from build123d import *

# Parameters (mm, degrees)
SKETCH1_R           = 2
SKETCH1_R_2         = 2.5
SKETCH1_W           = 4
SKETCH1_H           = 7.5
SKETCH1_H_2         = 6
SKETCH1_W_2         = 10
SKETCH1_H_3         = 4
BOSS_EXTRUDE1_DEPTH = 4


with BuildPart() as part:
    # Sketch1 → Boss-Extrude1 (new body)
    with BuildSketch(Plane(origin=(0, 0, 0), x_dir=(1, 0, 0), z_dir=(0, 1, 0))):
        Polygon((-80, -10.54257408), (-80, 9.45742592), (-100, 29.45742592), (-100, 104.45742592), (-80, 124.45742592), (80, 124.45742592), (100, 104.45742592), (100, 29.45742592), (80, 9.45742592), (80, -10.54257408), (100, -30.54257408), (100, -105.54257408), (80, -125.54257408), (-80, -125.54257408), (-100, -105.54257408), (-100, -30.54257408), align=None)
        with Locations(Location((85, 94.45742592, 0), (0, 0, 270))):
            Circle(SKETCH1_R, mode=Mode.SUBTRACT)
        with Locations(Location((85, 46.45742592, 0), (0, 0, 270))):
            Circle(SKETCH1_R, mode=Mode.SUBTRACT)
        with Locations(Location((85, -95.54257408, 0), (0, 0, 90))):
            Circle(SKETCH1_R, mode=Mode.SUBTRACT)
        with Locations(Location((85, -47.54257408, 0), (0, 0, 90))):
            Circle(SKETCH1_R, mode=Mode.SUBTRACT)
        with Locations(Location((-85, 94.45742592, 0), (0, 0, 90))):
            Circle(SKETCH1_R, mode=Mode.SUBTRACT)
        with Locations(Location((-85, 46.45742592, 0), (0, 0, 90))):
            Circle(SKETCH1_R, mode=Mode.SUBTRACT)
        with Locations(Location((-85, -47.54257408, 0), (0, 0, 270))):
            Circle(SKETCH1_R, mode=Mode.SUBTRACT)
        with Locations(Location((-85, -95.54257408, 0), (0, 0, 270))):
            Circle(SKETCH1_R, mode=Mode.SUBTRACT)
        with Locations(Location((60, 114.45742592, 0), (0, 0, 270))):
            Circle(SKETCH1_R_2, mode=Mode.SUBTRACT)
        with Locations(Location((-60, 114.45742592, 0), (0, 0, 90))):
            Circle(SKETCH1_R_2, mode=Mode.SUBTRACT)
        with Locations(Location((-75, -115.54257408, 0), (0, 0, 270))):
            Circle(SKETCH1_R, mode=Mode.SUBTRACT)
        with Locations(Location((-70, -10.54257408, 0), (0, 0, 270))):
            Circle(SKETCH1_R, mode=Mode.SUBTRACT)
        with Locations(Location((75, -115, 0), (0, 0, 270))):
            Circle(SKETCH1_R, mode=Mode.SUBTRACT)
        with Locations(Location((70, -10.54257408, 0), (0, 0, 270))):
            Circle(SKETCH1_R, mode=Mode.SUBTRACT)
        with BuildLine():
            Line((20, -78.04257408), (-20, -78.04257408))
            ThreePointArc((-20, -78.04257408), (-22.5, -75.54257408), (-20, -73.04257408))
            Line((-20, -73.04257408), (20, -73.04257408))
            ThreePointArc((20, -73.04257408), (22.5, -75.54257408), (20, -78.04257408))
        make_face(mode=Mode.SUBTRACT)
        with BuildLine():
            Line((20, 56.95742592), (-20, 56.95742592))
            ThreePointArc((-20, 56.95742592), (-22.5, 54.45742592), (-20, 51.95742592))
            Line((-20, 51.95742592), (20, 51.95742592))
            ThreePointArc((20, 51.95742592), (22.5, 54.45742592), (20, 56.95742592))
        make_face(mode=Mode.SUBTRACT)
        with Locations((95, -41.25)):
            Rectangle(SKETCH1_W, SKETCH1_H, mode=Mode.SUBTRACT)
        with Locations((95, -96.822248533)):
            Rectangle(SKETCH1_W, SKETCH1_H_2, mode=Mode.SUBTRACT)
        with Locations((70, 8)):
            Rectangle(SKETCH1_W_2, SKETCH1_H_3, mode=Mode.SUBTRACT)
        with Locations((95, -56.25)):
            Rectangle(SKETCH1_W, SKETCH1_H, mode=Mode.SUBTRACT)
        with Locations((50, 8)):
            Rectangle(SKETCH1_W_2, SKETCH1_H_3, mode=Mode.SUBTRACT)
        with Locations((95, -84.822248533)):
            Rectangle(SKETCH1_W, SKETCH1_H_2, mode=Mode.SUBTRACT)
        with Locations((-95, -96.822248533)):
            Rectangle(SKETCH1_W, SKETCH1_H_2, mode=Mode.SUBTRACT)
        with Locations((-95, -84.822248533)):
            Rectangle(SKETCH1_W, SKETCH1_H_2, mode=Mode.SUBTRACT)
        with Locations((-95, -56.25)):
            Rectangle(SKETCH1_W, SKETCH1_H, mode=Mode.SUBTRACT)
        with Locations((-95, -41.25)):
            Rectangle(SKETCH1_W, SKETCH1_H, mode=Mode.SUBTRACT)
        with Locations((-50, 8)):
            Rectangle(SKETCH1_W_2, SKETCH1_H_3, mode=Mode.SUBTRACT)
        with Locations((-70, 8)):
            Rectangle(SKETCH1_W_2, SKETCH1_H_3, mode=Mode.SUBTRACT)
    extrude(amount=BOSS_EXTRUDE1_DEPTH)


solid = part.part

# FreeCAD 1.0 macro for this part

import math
import FreeCAD as App
import Part
import Sketcher
from FreeCAD import Vector
Q = App.Units.Quantity

doc = App.newDocument("Part")
params = doc.addObject("Spreadsheet::Sheet", "Params")
for row, (alias, value) in enumerate([
    ("sketch1_diameter", "4 mm"),
    ("sketch1_diameter2", "5 mm"),
    ("sketch1_width", "160 mm"),
    ("sketch1_width2", "4 mm"),
    ("sketch1_width3", "40 mm"),
    ("pad1_length", "4 mm"),
], start=1):
    params.set(f"A{row}", alias)
    params.set(f"B{row}", "=" + value)
    params.setAlias(f"B{row}", alias)

body = doc.addObject("PartDesign::Body", "Body")

# Sketch on XZ plane
sketch1 = body.newObject("Sketcher::SketchObject", "Sketch")
sketch1.AttachmentSupport = (doc.getObject("XZ_Plane"), [""])
sketch1.MapMode = "FlatFace"
sketch1.addGeometry([
    Part.LineSegment(Vector(-80, -9.5, 0), Vector(-80, 10.5, 0)),  # 0
    Part.LineSegment(Vector(-80, 10.5, 0), Vector(-100, 30.5, 0)),  # 1
    Part.LineSegment(Vector(-100, 30.5, 0), Vector(-100, 105.5, 0)),  # 2
    Part.LineSegment(Vector(-100, 105.5, 0), Vector(-80, 125.5, 0)),  # 3
    Part.LineSegment(Vector(-80, 125.5, 0), Vector(80, 125.5, 0)),  # 4
    Part.LineSegment(Vector(80, 125.5, 0), Vector(100, 105.5, 0)),  # 5
    Part.LineSegment(Vector(100, 105.5, 0), Vector(100, 30.5, 0)),  # 6
    Part.LineSegment(Vector(100, 30.5, 0), Vector(80, 10.5, 0)),  # 7
    Part.LineSegment(Vector(80, 10.5, 0), Vector(80, -9.5, 0)),  # 8
    Part.LineSegment(Vector(80, -9.5, 0), Vector(100, -29.5, 0)),  # 9
    Part.LineSegment(Vector(100, -29.5, 0), Vector(100, -104.5, 0)),  # 10
    Part.LineSegment(Vector(100, -104.5, 0), Vector(80, -124.5, 0)),  # 11
    Part.LineSegment(Vector(80, -124.5, 0), Vector(-80, -124.5, 0)),  # 12
    Part.LineSegment(Vector(-80, -124.5, 0), Vector(-100, -104.5, 0)),  # 13
    Part.LineSegment(Vector(-100, -104.5, 0), Vector(-100, -29.5, 0)),  # 14
    Part.LineSegment(Vector(-100, -29.5, 0), Vector(-80, -9.5, 0)),  # 15
    Part.Circle(Vector(75, 115, 0), Vector(0, 0, 1), 2),  # 16
    Part.LineSegment(Vector(93, 99.8, 0), Vector(93, 93.8, 0)),  # 17
    Part.LineSegment(Vector(93, 93.8, 0), Vector(97, 93.8, 0)),  # 18
    Part.LineSegment(Vector(97, 93.8, 0), Vector(97, 99.8, 0)),  # 19
    Part.LineSegment(Vector(97, 99.8, 0), Vector(93, 99.8, 0)),  # 20
    Part.Circle(Vector(85, 95.5, 0), Vector(0, 0, 1), 2),  # 21
    Part.LineSegment(Vector(93, 87.8, 0), Vector(93, 81.8, 0)),  # 22
    Part.LineSegment(Vector(93, 81.8, 0), Vector(97, 81.8, 0)),  # 23
    Part.LineSegment(Vector(97, 81.8, 0), Vector(97, 87.8, 0)),  # 24
    Part.LineSegment(Vector(97, 87.8, 0), Vector(93, 87.8, 0)),  # 25
    Part.LineSegment(Vector(93, 60, 0), Vector(93, 52.5, 0)),  # 26
    Part.LineSegment(Vector(93, 52.5, 0), Vector(97, 52.5, 0)),  # 27
    Part.LineSegment(Vector(97, 52.5, 0), Vector(97, 60, 0)),  # 28
    Part.LineSegment(Vector(97, 60, 0), Vector(93, 60, 0)),  # 29
    Part.Circle(Vector(85, 47.5, 0), Vector(0, 0, 1), 2),  # 30
    Part.LineSegment(Vector(93, 45, 0), Vector(93, 37.5, 0)),  # 31
    Part.LineSegment(Vector(93, 37.5, 0), Vector(97, 37.5, 0)),  # 32
    Part.LineSegment(Vector(97, 37.5, 0), Vector(97, 45, 0)),  # 33
    Part.LineSegment(Vector(97, 45, 0), Vector(93, 45, 0)),  # 34
    Part.Circle(Vector(70, 10.5, 0), Vector(0, 0, 1), 2),  # 35
    Part.LineSegment(Vector(20, 78, 0), Vector(-20, 78, 0)),  # 36
    Part.ArcOfCircle(Part.Circle(Vector(-20, 75.5, 0), Vector(0, 0, 1), 2.5), math.radians(90), math.radians(270)),  # 37
    Part.LineSegment(Vector(-20, 73, 0), Vector(20, 73, 0)),  # 38
    Part.ArcOfCircle(Part.Circle(Vector(20, 75.5, 0), Vector(0, 0, 1), 2.5), math.radians(-90), math.radians(90)),  # 39
    Part.Circle(Vector(-75, 115.5, 0), Vector(0, 0, 1), 2),  # 40
    Part.LineSegment(Vector(-97, 99.8, 0), Vector(-97, 93.8, 0)),  # 41
    Part.LineSegment(Vector(-97, 93.8, 0), Vector(-93, 93.8, 0)),  # 42
    Part.LineSegment(Vector(-93, 93.8, 0), Vector(-93, 99.8, 0)),  # 43
    Part.LineSegment(Vector(-93, 99.8, 0), Vector(-97, 99.8, 0)),  # 44
    Part.Circle(Vector(-85, 95.5, 0), Vector(0, 0, 1), 2),  # 45
    Part.LineSegment(Vector(-97, 87.8, 0), Vector(-97, 81.8, 0)),  # 46
    Part.LineSegment(Vector(-97, 81.8, 0), Vector(-93, 81.8, 0)),  # 47
    Part.LineSegment(Vector(-93, 81.8, 0), Vector(-93, 87.8, 0)),  # 48
    Part.LineSegment(Vector(-93, 87.8, 0), Vector(-97, 87.8, 0)),  # 49
    Part.LineSegment(Vector(-97, 60, 0), Vector(-97, 52.5, 0)),  # 50
    Part.LineSegment(Vector(-97, 52.5, 0), Vector(-93, 52.5, 0)),  # 51
    Part.LineSegment(Vector(-93, 52.5, 0), Vector(-93, 60, 0)),  # 52
    Part.LineSegment(Vector(-93, 60, 0), Vector(-97, 60, 0)),  # 53
    Part.Circle(Vector(-85, 47.5, 0), Vector(0, 0, 1), 2),  # 54
    Part.LineSegment(Vector(-97, 45, 0), Vector(-97, 37.5, 0)),  # 55
    Part.LineSegment(Vector(-97, 37.5, 0), Vector(-93, 37.5, 0)),  # 56
    Part.LineSegment(Vector(-93, 37.5, 0), Vector(-93, 45, 0)),  # 57
    Part.LineSegment(Vector(-93, 45, 0), Vector(-97, 45, 0)),  # 58
    Part.Circle(Vector(-70, 10.5, 0), Vector(0, 0, 1), 2),  # 59
    Part.LineSegment(Vector(65, -6, 0), Vector(65, -10, 0)),  # 60
    Part.LineSegment(Vector(65, -10, 0), Vector(75, -10, 0)),  # 61
    Part.LineSegment(Vector(75, -10, 0), Vector(75, -6, 0)),  # 62
    Part.LineSegment(Vector(75, -6, 0), Vector(65, -6, 0)),  # 63
    Part.LineSegment(Vector(45, -6, 0), Vector(45, -10, 0)),  # 64
    Part.LineSegment(Vector(45, -10, 0), Vector(55, -10, 0)),  # 65
    Part.LineSegment(Vector(55, -10, 0), Vector(55, -6, 0)),  # 66
    Part.LineSegment(Vector(55, -6, 0), Vector(45, -6, 0)),  # 67
    Part.Circle(Vector(85, -46.5, 0), Vector(0, 0, 1), 2),  # 68
    Part.Circle(Vector(85, -94.5, 0), Vector(0, 0, 1), 2),  # 69
    Part.Circle(Vector(60, -114.5, 0), Vector(0, 0, 1), 2.5),  # 70
    Part.ArcOfCircle(Part.Circle(Vector(20, -54.5, 0), Vector(0, 0, 1), 2.5), math.radians(-90), math.radians(90)),  # 71
    Part.LineSegment(Vector(20, -52, 0), Vector(-20, -52, 0)),  # 72
    Part.ArcOfCircle(Part.Circle(Vector(-20, -54.5, 0), Vector(0, 0, 1), 2.5), math.radians(90), math.radians(270)),  # 73
    Part.LineSegment(Vector(-20, -57, 0), Vector(20, -57, 0)),  # 74
    Part.LineSegment(Vector(-55, -6, 0), Vector(-55, -10, 0)),  # 75
    Part.LineSegment(Vector(-55, -10, 0), Vector(-45, -10, 0)),  # 76
    Part.LineSegment(Vector(-45, -10, 0), Vector(-45, -6, 0)),  # 77
    Part.LineSegment(Vector(-45, -6, 0), Vector(-55, -6, 0)),  # 78
    Part.LineSegment(Vector(-75, -6, 0), Vector(-75, -10, 0)),  # 79
    Part.LineSegment(Vector(-75, -10, 0), Vector(-65, -10, 0)),  # 80
    Part.LineSegment(Vector(-65, -10, 0), Vector(-65, -6, 0)),  # 81
    Part.LineSegment(Vector(-65, -6, 0), Vector(-75, -6, 0)),  # 82
    Part.Circle(Vector(-85, -46.5, 0), Vector(0, 0, 1), 2),  # 83
    Part.Circle(Vector(-60, -114.5, 0), Vector(0, 0, 1), 2.5),  # 84
    Part.Circle(Vector(-85, -94.5, 0), Vector(0, 0, 1), 2),  # 85
], False)
sketch1.addConstraint([
    Sketcher.Constraint("Coincident", 0, 2, 1, 1),
    Sketcher.Constraint("Coincident", 1, 2, 2, 1),
    Sketcher.Constraint("Coincident", 2, 2, 3, 1),
    Sketcher.Constraint("Coincident", 3, 2, 4, 1),
    Sketcher.Constraint("Coincident", 4, 2, 5, 1),
    Sketcher.Constraint("Coincident", 5, 2, 6, 1),
    Sketcher.Constraint("Coincident", 6, 2, 7, 1),
    Sketcher.Constraint("Coincident", 7, 2, 8, 1),
    Sketcher.Constraint("Coincident", 8, 2, 9, 1),
    Sketcher.Constraint("Coincident", 9, 2, 10, 1),
    Sketcher.Constraint("Coincident", 10, 2, 11, 1),
    Sketcher.Constraint("Coincident", 11, 2, 12, 1),
    Sketcher.Constraint("Coincident", 12, 2, 13, 1),
    Sketcher.Constraint("Coincident", 13, 2, 14, 1),
    Sketcher.Constraint("Coincident", 14, 2, 15, 1),
    Sketcher.Constraint("Coincident", 15, 2, 0, 1),
    Sketcher.Constraint("Coincident", 17, 2, 18, 1),
    Sketcher.Constraint("Coincident", 18, 2, 19, 1),
    Sketcher.Constraint("Coincident", 19, 2, 20, 1),
    Sketcher.Constraint("Coincident", 20, 2, 17, 1),
    Sketcher.Constraint("Coincident", 22, 2, 23, 1),
    Sketcher.Constraint("Coincident", 23, 2, 24, 1),
    Sketcher.Constraint("Coincident", 24, 2, 25, 1),
    Sketcher.Constraint("Coincident", 25, 2, 22, 1),
    Sketcher.Constraint("Coincident", 26, 2, 27, 1),
    Sketcher.Constraint("Coincident", 27, 2, 28, 1),
    Sketcher.Constraint("Coincident", 28, 2, 29, 1),
    Sketcher.Constraint("Coincident", 29, 2, 26, 1),
    Sketcher.Constraint("Coincident", 31, 2, 32, 1),
    Sketcher.Constraint("Coincident", 32, 2, 33, 1),
    Sketcher.Constraint("Coincident", 33, 2, 34, 1),
    Sketcher.Constraint("Coincident", 34, 2, 31, 1),
    Sketcher.Constraint("Tangent", 36, 2, 37, 1),
    Sketcher.Constraint("Tangent", 37, 2, 38, 1),
    Sketcher.Constraint("Tangent", 38, 2, 39, 1),
    Sketcher.Constraint("Tangent", 39, 2, 36, 1),
    Sketcher.Constraint("Coincident", 41, 2, 42, 1),
    Sketcher.Constraint("Coincident", 42, 2, 43, 1),
    Sketcher.Constraint("Coincident", 43, 2, 44, 1),
    Sketcher.Constraint("Coincident", 44, 2, 41, 1),
    Sketcher.Constraint("Coincident", 46, 2, 47, 1),
    Sketcher.Constraint("Coincident", 47, 2, 48, 1),
    Sketcher.Constraint("Coincident", 48, 2, 49, 1),
    Sketcher.Constraint("Coincident", 49, 2, 46, 1),
    Sketcher.Constraint("Coincident", 50, 2, 51, 1),
    Sketcher.Constraint("Coincident", 51, 2, 52, 1),
    Sketcher.Constraint("Coincident", 52, 2, 53, 1),
    Sketcher.Constraint("Coincident", 53, 2, 50, 1),
    Sketcher.Constraint("Coincident", 55, 2, 56, 1),
    Sketcher.Constraint("Coincident", 56, 2, 57, 1),
    Sketcher.Constraint("Coincident", 57, 2, 58, 1),
    Sketcher.Constraint("Coincident", 58, 2, 55, 1),
    Sketcher.Constraint("Coincident", 60, 2, 61, 1),
    Sketcher.Constraint("Coincident", 61, 2, 62, 1),
    Sketcher.Constraint("Coincident", 62, 2, 63, 1),
    Sketcher.Constraint("Coincident", 63, 2, 60, 1),
    Sketcher.Constraint("Coincident", 64, 2, 65, 1),
    Sketcher.Constraint("Coincident", 65, 2, 66, 1),
    Sketcher.Constraint("Coincident", 66, 2, 67, 1),
    Sketcher.Constraint("Coincident", 67, 2, 64, 1),
    Sketcher.Constraint("Tangent", 71, 2, 72, 1),
    Sketcher.Constraint("Tangent", 72, 2, 73, 1),
    Sketcher.Constraint("Tangent", 73, 2, 74, 1),
    Sketcher.Constraint("Tangent", 74, 2, 71, 1),
    Sketcher.Constraint("Coincident", 75, 2, 76, 1),
    Sketcher.Constraint("Coincident", 76, 2, 77, 1),
    Sketcher.Constraint("Coincident", 77, 2, 78, 1),
    Sketcher.Constraint("Coincident", 78, 2, 75, 1),
    Sketcher.Constraint("Coincident", 79, 2, 80, 1),
    Sketcher.Constraint("Coincident", 80, 2, 81, 1),
    Sketcher.Constraint("Coincident", 81, 2, 82, 1),
    Sketcher.Constraint("Coincident", 82, 2, 79, 1),
    Sketcher.Constraint("Vertical", 0),
    Sketcher.Constraint("Vertical", 2),
    Sketcher.Constraint("Horizontal", 4),
    Sketcher.Constraint("Vertical", 6),
    Sketcher.Constraint("Vertical", 8),
    Sketcher.Constraint("Vertical", 10),
    Sketcher.Constraint("Horizontal", 12),
    Sketcher.Constraint("Vertical", 14),
    Sketcher.Constraint("Vertical", 17),
    Sketcher.Constraint("Horizontal", 18),
    Sketcher.Constraint("Vertical", 19),
    Sketcher.Constraint("Horizontal", 20),
    Sketcher.Constraint("Vertical", 22),
    Sketcher.Constraint("Horizontal", 23),
    Sketcher.Constraint("Vertical", 24),
    Sketcher.Constraint("Horizontal", 25),
    Sketcher.Constraint("Vertical", 26),
    Sketcher.Constraint("Horizontal", 27),
    Sketcher.Constraint("Vertical", 28),
    Sketcher.Constraint("Horizontal", 29),
    Sketcher.Constraint("Vertical", 31),
    Sketcher.Constraint("Horizontal", 32),
    Sketcher.Constraint("Vertical", 33),
    Sketcher.Constraint("Horizontal", 34),
    Sketcher.Constraint("Horizontal", 36),
    Sketcher.Constraint("Horizontal", 38),
    Sketcher.Constraint("Vertical", 41),
    Sketcher.Constraint("Horizontal", 42),
    Sketcher.Constraint("Vertical", 43),
    Sketcher.Constraint("Horizontal", 44),
    Sketcher.Constraint("Vertical", 46),
    Sketcher.Constraint("Horizontal", 47),
    Sketcher.Constraint("Vertical", 48),
    Sketcher.Constraint("Horizontal", 49),
    Sketcher.Constraint("Vertical", 50),
    Sketcher.Constraint("Horizontal", 51),
    Sketcher.Constraint("Vertical", 52),
    Sketcher.Constraint("Horizontal", 53),
    Sketcher.Constraint("Vertical", 55),
    Sketcher.Constraint("Horizontal", 56),
    Sketcher.Constraint("Vertical", 57),
    Sketcher.Constraint("Horizontal", 58),
    Sketcher.Constraint("Vertical", 60),
    Sketcher.Constraint("Horizontal", 61),
    Sketcher.Constraint("Vertical", 62),
    Sketcher.Constraint("Horizontal", 63),
    Sketcher.Constraint("Vertical", 64),
    Sketcher.Constraint("Horizontal", 65),
    Sketcher.Constraint("Vertical", 66),
    Sketcher.Constraint("Horizontal", 67),
    Sketcher.Constraint("Horizontal", 72),
    Sketcher.Constraint("Horizontal", 74),
    Sketcher.Constraint("Vertical", 75),
    Sketcher.Constraint("Horizontal", 76),
    Sketcher.Constraint("Vertical", 77),
    Sketcher.Constraint("Horizontal", 78),
    Sketcher.Constraint("Vertical", 79),
    Sketcher.Constraint("Horizontal", 80),
    Sketcher.Constraint("Vertical", 81),
    Sketcher.Constraint("Horizontal", 82),
    Sketcher.Constraint("Equal", 16, 21),
    Sketcher.Constraint("Equal", 21, 30),
    Sketcher.Constraint("Equal", 30, 35),
    Sketcher.Constraint("Equal", 35, 40),
    Sketcher.Constraint("Equal", 40, 45),
    Sketcher.Constraint("Equal", 45, 54),
    Sketcher.Constraint("Equal", 54, 59),
    Sketcher.Constraint("Equal", 59, 68),
    Sketcher.Constraint("Equal", 68, 69),
    Sketcher.Constraint("Equal", 39, 70),
    Sketcher.Constraint("Equal", 70, 71),
    Sketcher.Constraint("Equal", 69, 83),
    Sketcher.Constraint("Equal", 73, 84),
    Sketcher.Constraint("Equal", 83, 85),
    Sketcher.Constraint("Symmetric", 21, 3, 45, 3, -2),
    Sketcher.Constraint("Symmetric", 30, 3, 54, 3, -2),
    Sketcher.Constraint("Symmetric", 35, 3, 59, 3, -2),
    Sketcher.Constraint("Symmetric", 68, 3, 83, 3, -2),
    Sketcher.Constraint("Symmetric", 70, 3, 84, 3, -2),
    Sketcher.Constraint("Symmetric", 69, 3, 85, 3, -2),
    Sketcher.Constraint("Symmetric", 2, 2, 5, 2, -2),
    Sketcher.Constraint("Symmetric", 0, 2, 7, 2, -2),
    Sketcher.Constraint("Symmetric", 10, 2, 13, 2, -2),
    Sketcher.Constraint("Symmetric", 18, 2, 41, 2, -2),
    Sketcher.Constraint("Symmetric", 20, 2, 43, 2, -2),
    Sketcher.Constraint("Symmetric", 23, 2, 46, 2, -2),
    Sketcher.Constraint("Symmetric", 25, 2, 48, 2, -2),
    Sketcher.Constraint("Symmetric", 27, 2, 50, 2, -2),
    Sketcher.Constraint("Symmetric", 29, 2, 52, 2, -2),
    Sketcher.Constraint("Symmetric", 32, 2, 55, 2, -2),
    Sketcher.Constraint("Symmetric", 34, 2, 57, 2, -2),
    Sketcher.Constraint("Symmetric", 65, 2, 75, 2, -2),
    Sketcher.Constraint("Symmetric", 67, 2, 77, 2, -2),
    Sketcher.Constraint("Symmetric", 61, 2, 79, 2, -2),
    Sketcher.Constraint("Symmetric", 63, 2, 81, 2, -2),
    Sketcher.Constraint("Perpendicular", 1, 3),
    Sketcher.Constraint("Perpendicular", 3, 5),
    Sketcher.Constraint("Perpendicular", 5, 7),
    Sketcher.Constraint("Perpendicular", 7, 9),
    Sketcher.Constraint("Perpendicular", 9, 11),
    Sketcher.Constraint("Perpendicular", 11, 13),
    Sketcher.Constraint("Perpendicular", 13, 15),
    Sketcher.Constraint("Horizontal", 59, 3, 0, 2),
    Sketcher.Constraint("Horizontal", 1, 2, 6, 2),
    Sketcher.Constraint("Horizontal", 9, 2, 14, 2),
    Sketcher.Constraint("Horizontal", 61, 2, 64, 2),
    Sketcher.Constraint("Horizontal", 63, 2, 66, 2),
    Sketcher.Constraint("Vertical", 21, 3, 30, 3),
    Sketcher.Constraint("Vertical", 30, 3, 68, 3),
    Sketcher.Constraint("Vertical", 68, 3, 69, 3),
    Sketcher.Constraint("Vertical", 39, 3, 71, 3),
    Sketcher.Constraint("Vertical", 37, 3, 73, 3),
    Sketcher.Constraint("Vertical", 0, 2, 3, 2),
    Sketcher.Constraint("Vertical", 6, 2, 9, 2),
    Sketcher.Constraint("Vertical", 8, 2, 11, 2),
    Sketcher.Constraint("Vertical", 20, 2, 22, 2),
    Sketcher.Constraint("Vertical", 19, 2, 23, 2),
    Sketcher.Constraint("Vertical", 25, 2, 26, 2),
    Sketcher.Constraint("Vertical", 24, 2, 27, 2),
    Sketcher.Constraint("Vertical", 29, 2, 31, 2),
    Sketcher.Constraint("Vertical", 28, 2, 32, 2),
    Sketcher.Constraint("Vertical", 16, 3, 61, 2),
    Sketcher.Constraint("Vertical", 40, 3, 79, 2),
    Sketcher.Constraint("Equal", 63, 65),
    Sketcher.Constraint("Equal", 6, 10),
    Sketcher.Constraint("Equal", 19, 22),
    Sketcher.Constraint("Equal", 28, 31),
    Sketcher.Constraint("Equal", 58, 60),
    Sketcher.Constraint("Diameter", 16, Q("4 mm")),
    Sketcher.Constraint("Diameter", 70, Q("5 mm")),
    Sketcher.Constraint("DistanceX", 4, 1, 4, 2, Q("160 mm")),
    Sketcher.Constraint("DistanceX", 18, 1, 18, 2, Q("4 mm")),
    Sketcher.Constraint("DistanceX", 36, 2, 36, 1, Q("40 mm")),
    Sketcher.Constraint("DistanceX", 61, 1, 61, 2, Q("10 mm")),
    Sketcher.Constraint("DistanceY", 0, 1, 0, 2, Q("20 mm")),
    Sketcher.Constraint("DistanceY", 2, 1, 2, 2, Q("75 mm")),
    Sketcher.Constraint("DistanceY", 17, 2, 17, 1, Q("6 mm")),
    Sketcher.Constraint("DistanceY", 26, 2, 26, 1, Q("7.5 mm")),
    Sketcher.Constraint("DistanceX", -1, 1, 16, 3, Q("75 mm")),
    Sketcher.Constraint("DistanceY", -1, 1, 16, 3, Q("115 mm")),
    Sketcher.Constraint("DistanceX", -1, 1, 21, 3, Q("85 mm")),
    Sketcher.Constraint("DistanceX", -1, 1, 35, 3, Q("70 mm")),
    Sketcher.Constraint("DistanceX", 37, 3, -1, 1, Q("20 mm")),
    Sketcher.Constraint("DistanceX", -1, 1, 70, 3, Q("60 mm")),
    Sketcher.Constraint("DistanceX", 1, 2, -1, 1, Q("100 mm")),
    Sketcher.Constraint("DistanceX", -1, 1, 17, 2, Q("93 mm")),
    Sketcher.Constraint("DistanceY", -1, 1, 28, 2, Q("60 mm")),
    Sketcher.Constraint("DistanceY", -1, 1, 33, 2, Q("45 mm")),
    Sketcher.Constraint("DistanceY", 60, 2, -1, 1, Q("10 mm")),
    Sketcher.Constraint("DistanceX", -1, 1, 64, 2, Q("45 mm")),
    Sketcher.Constraint("DistanceY", -1, 1, 17, 2, Q("93.822249 mm")),
    Sketcher.Constraint("DistanceY", -1, 1, 22, 2, Q("81.822249 mm")),
    Sketcher.Constraint("DistanceY", -1, 1, 21, 3, Q("95.542574 mm")),
    Sketcher.Constraint("DistanceY", -1, 1, 30, 3, Q("47.542574 mm")),
    Sketcher.Constraint("DistanceY", -1, 1, 35, 3, Q("10.542574 mm")),
    Sketcher.Constraint("DistanceY", -1, 1, 37, 3, Q("75.542574 mm")),
    Sketcher.Constraint("DistanceY", -1, 1, 40, 3, Q("115.542574 mm")),
    Sketcher.Constraint("DistanceY", 68, 3, -1, 1, Q("46.457426 mm")),
    Sketcher.Constraint("DistanceY", 69, 3, -1, 1, Q("94.457426 mm")),
    Sketcher.Constraint("DistanceY", 70, 3, -1, 1, Q("114.457426 mm")),
    Sketcher.Constraint("DistanceY", 71, 3, -1, 1, Q("54.457426 mm")),
])
sketch1.setExpression("Constraints[200]", "Params.sketch1_diameter")
sketch1.setExpression("Constraints[201]", "Params.sketch1_diameter2")
sketch1.setExpression("Constraints[202]", "Params.sketch1_width")
sketch1.setExpression("Constraints[203]", "Params.sketch1_width2")
sketch1.setExpression("Constraints[204]", "Params.sketch1_width3")
pad1 = body.newObject("PartDesign::Pad", "Pad")
pad1.Profile = sketch1
pad1.setExpression("Length", "Params.pad1_length")
pad1.Reversed = True

doc.recompute()
